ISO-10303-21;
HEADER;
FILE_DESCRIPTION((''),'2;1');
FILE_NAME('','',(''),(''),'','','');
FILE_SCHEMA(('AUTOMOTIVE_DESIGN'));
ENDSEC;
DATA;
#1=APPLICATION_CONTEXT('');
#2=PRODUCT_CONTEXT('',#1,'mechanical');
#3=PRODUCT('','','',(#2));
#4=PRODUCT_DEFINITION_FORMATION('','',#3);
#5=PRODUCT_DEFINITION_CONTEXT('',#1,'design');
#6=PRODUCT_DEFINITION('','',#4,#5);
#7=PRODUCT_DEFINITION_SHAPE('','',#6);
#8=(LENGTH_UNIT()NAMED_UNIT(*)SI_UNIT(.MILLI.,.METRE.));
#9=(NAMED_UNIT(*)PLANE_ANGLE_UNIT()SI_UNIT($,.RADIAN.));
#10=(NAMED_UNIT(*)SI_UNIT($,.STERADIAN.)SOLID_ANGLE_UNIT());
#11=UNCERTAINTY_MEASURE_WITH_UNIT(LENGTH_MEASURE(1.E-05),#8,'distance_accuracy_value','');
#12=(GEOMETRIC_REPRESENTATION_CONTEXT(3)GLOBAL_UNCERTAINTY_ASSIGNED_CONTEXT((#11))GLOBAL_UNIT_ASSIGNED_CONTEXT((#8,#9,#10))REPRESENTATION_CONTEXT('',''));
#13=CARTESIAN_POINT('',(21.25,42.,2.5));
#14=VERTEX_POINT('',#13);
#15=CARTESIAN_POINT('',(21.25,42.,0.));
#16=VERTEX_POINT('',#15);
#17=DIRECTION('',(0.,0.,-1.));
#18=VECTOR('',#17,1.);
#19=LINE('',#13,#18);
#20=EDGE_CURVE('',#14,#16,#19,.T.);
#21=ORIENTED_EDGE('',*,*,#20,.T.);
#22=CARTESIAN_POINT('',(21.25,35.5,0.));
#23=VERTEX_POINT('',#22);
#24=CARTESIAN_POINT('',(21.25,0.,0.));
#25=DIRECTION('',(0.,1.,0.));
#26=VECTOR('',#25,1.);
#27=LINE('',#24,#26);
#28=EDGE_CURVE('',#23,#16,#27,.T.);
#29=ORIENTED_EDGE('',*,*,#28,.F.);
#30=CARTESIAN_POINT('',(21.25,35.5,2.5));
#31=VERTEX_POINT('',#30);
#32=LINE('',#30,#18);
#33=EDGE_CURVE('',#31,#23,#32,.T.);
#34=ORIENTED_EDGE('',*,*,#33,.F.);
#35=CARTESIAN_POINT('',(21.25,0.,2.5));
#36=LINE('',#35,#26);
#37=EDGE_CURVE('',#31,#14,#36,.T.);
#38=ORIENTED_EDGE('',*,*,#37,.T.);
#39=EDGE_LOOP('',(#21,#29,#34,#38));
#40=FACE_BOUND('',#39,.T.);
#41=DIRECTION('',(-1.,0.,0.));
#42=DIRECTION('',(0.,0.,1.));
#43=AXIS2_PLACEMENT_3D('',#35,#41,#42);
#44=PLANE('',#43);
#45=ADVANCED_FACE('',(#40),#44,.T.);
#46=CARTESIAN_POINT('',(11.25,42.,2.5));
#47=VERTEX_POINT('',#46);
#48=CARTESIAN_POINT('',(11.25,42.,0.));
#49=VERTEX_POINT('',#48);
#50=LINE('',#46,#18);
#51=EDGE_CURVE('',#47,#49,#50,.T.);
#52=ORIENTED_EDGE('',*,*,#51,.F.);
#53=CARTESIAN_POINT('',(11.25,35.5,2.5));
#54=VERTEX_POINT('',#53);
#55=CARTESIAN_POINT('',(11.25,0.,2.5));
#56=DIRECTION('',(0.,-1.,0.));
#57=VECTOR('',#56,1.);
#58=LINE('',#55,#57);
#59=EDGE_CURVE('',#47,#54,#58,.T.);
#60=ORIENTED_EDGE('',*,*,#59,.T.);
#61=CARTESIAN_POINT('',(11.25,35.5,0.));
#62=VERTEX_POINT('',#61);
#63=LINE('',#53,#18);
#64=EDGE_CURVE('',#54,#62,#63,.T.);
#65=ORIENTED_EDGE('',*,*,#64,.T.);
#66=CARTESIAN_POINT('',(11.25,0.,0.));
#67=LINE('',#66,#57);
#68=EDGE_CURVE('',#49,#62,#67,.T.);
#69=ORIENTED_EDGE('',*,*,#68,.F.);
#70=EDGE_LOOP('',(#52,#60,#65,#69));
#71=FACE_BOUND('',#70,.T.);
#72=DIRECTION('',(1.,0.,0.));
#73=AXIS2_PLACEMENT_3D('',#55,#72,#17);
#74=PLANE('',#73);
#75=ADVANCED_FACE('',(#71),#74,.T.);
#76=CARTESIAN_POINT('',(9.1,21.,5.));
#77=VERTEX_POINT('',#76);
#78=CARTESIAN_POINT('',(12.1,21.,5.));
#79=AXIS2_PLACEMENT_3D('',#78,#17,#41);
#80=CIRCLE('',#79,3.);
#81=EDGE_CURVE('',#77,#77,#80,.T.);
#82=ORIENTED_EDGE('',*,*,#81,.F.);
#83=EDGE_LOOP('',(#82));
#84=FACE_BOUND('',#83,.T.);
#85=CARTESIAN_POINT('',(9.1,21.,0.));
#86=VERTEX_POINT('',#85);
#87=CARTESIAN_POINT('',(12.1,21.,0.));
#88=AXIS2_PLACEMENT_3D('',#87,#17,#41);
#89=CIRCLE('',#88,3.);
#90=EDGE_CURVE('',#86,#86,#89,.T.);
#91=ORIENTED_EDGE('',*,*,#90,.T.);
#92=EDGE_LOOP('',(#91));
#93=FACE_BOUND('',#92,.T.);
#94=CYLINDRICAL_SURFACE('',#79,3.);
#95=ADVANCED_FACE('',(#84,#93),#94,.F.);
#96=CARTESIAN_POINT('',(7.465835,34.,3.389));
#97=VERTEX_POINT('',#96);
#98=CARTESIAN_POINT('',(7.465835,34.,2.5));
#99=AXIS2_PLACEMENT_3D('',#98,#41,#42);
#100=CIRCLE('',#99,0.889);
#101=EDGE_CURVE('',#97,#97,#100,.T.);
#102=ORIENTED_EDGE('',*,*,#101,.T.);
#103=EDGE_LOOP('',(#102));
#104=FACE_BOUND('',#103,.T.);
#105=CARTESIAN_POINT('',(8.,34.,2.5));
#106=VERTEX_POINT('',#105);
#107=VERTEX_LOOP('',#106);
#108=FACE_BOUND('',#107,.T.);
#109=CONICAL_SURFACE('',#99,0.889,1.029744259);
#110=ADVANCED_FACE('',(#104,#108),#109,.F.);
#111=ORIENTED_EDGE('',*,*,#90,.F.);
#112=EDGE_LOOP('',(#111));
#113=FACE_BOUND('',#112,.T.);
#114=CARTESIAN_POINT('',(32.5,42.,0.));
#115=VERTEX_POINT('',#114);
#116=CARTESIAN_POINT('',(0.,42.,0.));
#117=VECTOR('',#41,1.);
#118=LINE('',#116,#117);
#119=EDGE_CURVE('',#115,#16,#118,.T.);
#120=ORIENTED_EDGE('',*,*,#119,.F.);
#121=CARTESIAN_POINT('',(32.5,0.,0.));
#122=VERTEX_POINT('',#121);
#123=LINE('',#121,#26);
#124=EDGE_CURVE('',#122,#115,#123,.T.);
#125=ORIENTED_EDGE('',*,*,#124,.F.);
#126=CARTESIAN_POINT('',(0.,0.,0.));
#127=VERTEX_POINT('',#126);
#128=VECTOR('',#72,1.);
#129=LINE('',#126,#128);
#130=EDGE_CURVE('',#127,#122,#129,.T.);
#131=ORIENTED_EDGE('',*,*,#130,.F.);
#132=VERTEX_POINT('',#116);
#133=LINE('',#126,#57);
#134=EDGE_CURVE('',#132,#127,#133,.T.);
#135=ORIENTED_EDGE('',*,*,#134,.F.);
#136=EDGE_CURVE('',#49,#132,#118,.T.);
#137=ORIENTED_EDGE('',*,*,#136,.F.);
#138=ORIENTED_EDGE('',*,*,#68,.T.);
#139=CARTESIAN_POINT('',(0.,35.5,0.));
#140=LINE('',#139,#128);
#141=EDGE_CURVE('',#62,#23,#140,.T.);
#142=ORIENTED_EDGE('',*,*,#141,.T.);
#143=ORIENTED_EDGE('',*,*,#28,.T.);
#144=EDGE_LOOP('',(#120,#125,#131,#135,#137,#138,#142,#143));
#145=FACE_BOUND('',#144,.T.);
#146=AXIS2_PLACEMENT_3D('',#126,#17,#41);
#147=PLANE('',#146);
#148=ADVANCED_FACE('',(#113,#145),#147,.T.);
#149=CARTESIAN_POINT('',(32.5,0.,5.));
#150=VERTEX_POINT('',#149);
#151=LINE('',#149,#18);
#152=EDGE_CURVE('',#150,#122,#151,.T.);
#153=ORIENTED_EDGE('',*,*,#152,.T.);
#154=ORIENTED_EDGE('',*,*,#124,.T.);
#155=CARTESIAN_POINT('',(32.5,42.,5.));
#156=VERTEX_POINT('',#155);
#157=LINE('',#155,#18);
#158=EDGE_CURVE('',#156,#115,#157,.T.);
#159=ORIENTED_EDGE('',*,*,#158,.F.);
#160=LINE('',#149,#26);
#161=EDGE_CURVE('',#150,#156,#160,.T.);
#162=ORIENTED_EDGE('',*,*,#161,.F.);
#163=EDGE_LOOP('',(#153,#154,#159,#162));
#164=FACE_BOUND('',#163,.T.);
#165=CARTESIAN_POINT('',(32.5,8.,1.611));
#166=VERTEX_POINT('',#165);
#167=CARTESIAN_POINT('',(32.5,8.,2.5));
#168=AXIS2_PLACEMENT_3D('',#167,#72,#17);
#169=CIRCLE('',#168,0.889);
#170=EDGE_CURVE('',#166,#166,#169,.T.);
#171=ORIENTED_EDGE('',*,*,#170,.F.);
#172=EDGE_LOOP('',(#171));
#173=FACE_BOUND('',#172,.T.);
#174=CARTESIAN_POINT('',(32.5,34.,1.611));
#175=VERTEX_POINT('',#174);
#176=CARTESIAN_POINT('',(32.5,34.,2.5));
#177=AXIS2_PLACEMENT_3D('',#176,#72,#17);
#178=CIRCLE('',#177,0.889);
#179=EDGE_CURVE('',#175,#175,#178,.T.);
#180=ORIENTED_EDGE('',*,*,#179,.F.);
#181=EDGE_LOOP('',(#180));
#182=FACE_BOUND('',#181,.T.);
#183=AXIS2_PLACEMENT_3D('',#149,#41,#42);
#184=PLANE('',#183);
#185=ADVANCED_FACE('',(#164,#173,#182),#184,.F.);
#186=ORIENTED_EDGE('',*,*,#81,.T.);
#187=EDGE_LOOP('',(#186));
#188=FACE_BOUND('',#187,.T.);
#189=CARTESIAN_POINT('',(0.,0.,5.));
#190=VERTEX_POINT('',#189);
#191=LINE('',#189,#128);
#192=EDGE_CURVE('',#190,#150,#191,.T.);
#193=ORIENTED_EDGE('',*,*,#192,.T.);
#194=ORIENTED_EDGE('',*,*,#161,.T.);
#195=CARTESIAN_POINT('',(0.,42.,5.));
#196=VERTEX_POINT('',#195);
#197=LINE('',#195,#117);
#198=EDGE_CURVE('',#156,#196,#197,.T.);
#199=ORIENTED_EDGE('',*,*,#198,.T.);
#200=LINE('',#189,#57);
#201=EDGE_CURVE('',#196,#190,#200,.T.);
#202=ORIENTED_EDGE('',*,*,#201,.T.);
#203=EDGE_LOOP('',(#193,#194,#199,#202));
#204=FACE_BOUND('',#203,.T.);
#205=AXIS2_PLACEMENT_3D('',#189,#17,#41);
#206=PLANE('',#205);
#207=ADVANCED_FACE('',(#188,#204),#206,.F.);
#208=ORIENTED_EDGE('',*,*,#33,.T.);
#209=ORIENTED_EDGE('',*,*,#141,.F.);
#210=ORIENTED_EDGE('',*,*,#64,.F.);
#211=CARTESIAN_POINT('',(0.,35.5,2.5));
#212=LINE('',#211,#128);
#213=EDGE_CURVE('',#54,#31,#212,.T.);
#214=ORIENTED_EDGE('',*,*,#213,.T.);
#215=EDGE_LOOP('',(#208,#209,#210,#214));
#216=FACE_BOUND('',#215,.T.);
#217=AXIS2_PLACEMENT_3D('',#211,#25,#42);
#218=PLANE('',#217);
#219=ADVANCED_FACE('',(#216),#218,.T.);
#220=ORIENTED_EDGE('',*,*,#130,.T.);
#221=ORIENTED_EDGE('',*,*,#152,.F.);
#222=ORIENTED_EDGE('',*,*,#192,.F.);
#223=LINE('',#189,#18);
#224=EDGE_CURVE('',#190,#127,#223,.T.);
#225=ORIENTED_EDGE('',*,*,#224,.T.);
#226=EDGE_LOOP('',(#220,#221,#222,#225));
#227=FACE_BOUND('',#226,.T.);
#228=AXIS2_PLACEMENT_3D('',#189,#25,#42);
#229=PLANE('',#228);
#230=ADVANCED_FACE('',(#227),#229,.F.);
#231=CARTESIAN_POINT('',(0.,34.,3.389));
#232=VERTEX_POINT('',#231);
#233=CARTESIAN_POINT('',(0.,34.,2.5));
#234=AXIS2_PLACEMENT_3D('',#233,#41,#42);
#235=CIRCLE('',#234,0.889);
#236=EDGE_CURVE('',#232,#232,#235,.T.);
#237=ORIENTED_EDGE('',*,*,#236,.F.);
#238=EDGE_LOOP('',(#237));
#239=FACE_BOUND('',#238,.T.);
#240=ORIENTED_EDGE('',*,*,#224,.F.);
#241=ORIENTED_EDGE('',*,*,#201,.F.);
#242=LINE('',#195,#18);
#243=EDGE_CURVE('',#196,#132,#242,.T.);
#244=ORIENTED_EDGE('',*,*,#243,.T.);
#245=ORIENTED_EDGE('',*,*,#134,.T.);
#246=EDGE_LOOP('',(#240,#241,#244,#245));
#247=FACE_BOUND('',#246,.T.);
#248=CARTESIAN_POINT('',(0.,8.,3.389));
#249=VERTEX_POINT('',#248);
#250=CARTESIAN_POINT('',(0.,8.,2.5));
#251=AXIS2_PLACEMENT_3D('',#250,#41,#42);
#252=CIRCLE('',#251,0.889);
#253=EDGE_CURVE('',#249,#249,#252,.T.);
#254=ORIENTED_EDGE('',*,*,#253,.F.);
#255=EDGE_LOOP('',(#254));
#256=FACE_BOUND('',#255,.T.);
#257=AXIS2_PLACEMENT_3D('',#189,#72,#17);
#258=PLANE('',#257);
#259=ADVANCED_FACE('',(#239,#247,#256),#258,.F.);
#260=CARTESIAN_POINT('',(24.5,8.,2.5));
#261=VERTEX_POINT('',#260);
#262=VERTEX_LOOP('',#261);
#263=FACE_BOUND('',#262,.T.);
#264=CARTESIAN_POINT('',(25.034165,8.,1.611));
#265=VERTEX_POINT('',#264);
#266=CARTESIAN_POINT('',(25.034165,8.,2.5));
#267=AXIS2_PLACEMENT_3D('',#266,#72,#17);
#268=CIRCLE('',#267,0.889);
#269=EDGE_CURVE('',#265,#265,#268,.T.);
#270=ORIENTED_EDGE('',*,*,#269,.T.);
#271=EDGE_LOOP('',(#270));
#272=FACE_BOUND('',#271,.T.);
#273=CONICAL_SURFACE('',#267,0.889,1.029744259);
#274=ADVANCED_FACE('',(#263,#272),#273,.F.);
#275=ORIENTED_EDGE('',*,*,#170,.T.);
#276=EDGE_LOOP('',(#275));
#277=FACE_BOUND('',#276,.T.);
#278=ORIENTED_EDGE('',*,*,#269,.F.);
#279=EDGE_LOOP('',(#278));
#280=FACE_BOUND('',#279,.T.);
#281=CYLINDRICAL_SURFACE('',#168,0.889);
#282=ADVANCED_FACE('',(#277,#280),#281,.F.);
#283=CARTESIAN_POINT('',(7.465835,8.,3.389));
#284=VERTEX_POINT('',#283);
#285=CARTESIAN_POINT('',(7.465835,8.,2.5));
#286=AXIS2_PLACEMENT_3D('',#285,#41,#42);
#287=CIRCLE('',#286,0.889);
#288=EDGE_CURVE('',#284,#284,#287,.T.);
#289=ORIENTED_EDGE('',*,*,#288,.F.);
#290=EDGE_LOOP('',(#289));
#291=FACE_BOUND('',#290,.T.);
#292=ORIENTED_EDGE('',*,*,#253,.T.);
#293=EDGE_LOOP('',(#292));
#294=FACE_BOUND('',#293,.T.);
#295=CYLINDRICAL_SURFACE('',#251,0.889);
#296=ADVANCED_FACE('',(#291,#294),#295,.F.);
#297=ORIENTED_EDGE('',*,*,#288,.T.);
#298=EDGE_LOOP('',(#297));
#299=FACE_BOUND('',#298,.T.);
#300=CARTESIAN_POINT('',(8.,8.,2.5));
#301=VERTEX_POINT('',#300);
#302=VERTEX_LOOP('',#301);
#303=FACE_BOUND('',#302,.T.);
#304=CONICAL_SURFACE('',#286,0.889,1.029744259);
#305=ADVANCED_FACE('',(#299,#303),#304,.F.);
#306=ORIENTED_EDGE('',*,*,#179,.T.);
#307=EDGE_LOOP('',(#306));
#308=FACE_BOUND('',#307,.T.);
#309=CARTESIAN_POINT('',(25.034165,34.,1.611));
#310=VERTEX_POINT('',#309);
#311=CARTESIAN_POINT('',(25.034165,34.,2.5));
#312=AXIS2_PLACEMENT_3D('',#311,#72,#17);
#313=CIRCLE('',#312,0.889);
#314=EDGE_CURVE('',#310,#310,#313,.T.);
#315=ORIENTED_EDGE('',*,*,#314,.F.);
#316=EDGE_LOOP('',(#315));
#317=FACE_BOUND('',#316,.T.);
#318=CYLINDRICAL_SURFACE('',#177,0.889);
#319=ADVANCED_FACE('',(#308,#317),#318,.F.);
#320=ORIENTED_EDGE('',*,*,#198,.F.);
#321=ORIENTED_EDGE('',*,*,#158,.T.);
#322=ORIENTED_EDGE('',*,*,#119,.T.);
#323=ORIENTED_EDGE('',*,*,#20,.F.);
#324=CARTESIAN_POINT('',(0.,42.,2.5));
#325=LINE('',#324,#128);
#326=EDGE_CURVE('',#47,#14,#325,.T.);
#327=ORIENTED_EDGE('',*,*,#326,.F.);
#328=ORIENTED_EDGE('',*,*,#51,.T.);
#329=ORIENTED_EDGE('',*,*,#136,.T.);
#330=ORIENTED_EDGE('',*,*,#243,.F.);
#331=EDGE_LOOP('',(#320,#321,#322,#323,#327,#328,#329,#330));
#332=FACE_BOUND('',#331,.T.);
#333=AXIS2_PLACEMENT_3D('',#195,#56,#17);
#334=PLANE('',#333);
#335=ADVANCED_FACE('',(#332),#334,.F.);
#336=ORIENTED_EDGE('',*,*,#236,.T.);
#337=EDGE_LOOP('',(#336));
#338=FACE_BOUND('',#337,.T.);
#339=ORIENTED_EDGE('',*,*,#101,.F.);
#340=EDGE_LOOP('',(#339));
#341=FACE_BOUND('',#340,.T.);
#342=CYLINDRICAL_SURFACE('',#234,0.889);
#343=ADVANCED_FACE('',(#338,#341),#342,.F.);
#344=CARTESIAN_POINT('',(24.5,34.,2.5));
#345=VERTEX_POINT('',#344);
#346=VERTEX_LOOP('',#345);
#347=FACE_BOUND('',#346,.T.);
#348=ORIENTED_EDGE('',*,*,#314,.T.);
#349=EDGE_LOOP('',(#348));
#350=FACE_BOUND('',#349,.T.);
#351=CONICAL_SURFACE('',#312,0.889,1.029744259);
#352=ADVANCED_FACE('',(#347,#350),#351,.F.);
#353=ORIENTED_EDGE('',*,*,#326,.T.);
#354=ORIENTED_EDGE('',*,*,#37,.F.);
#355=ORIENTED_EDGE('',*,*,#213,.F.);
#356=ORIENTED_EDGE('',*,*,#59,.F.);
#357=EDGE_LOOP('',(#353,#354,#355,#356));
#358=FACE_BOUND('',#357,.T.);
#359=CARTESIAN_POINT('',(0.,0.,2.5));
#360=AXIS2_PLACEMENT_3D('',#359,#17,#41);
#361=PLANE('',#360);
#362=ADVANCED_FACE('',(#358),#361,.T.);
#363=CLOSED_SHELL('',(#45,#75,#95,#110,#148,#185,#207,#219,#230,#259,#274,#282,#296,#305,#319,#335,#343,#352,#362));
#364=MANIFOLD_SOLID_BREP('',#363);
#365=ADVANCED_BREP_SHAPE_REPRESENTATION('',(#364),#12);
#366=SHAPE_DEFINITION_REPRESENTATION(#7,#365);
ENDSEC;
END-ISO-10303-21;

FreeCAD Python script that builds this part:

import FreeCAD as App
import Part
import Sketcher
from FreeCAD import Vector
Q = App.Units.Quantity

doc = App.newDocument("Part")
body = doc.addObject("PartDesign::Body", "Body")

sketch1 = doc.addObject("Sketcher::SketchObject", "Sketch")
body.addObject(sketch1)
sketch1.AttachmentSupport = (doc.XY_Plane, [""])
sketch1.MapMode = "FlatFace"
sketch1.addGeometry([
    Part.LineSegment(Vector(0, 42, 0), Vector(0, 0, 0)),
    Part.LineSegment(Vector(0, 0, 0), Vector(32, 0, 0)),
    Part.LineSegment(Vector(32, 0, 0), Vector(32, 42, 0)),
    Part.LineSegment(Vector(32, 42, 0), Vector(0, 42, 0)),
], False)
sketch1.addConstraint([
    Sketcher.Constraint("Coincident", 0, 2, 1, 1),
    Sketcher.Constraint("Coincident", 1, 2, 2, 1),
    Sketcher.Constraint("Coincident", 2, 2, 3, 1),
    Sketcher.Constraint("Coincident", 3, 2, 0, 1),
    Sketcher.Constraint("Vertical", 0),
    Sketcher.Constraint("Horizontal", 1),
    Sketcher.Constraint("Vertical", 2),
    Sketcher.Constraint("Horizontal", 3),
    Sketcher.Constraint("Coincident", 0, 2, -1, 1),
    Sketcher.Constraint("DistanceY", 0, 2, 0, 1, Q("42 mm")),
    Sketcher.Constraint("DistanceX", 1, 1, 1, 2, Q("32.5 mm")),
])
pad1 = doc.addObject("PartDesign::Pad", "Pad")
body.addObject(pad1)
pad1.Profile = sketch1
pad1.Length = 5

sketch2 = doc.addObject("Sketcher::SketchObject", "Sketch001")
body.addObject(sketch2)
sketch2.AttachmentSupport = (doc.YZ_Plane, [""])
sketch2.MapMode = "FlatFace"
sketch2.addGeometry([
    Part.Circle(Vector(34, 2.5, 0), Vector(0, 0, 1), 0.9),
    Part.Circle(Vector(8, 2.5, 0), Vector(0, 0, 1), 0.9),
], False)
sketch2.addConstraint([
    Sketcher.Constraint("Equal", 0, 1),
    Sketcher.Constraint("Horizontal", 0, 3, 1, 3),
    Sketcher.Constraint("Diameter", 0, Q("1.778 mm")),
    Sketcher.Constraint("DistanceX", -1, 1, 0, 3, Q("34 mm")),
    Sketcher.Constraint("DistanceX", -1, 1, 1, 3, Q("8 mm")),
    Sketcher.Constraint("DistanceY", -1, 1, 0, 3, Q("2.5 mm")),
])
doc.recompute()
hole = doc.addObject("PartDesign::Hole", "Hole")
body.addObject(hole)
hole.Profile = sketch2
hole.ThreadType = "None"
hole.Diameter = 1.778
hole.DepthType = "Dimension"
hole.Depth = 7.465835
hole.DrillPoint = "Angled"
hole.DrillPointAngle = 118
hole.Reversed = True

sketch3 = doc.addObject("Sketcher::SketchObject", "Sketch002")
body.addObject(sketch3)
sketch3.AttachmentSupport = (doc.YZ_Plane, [""])
sketch3.MapMode = "FlatFace"
sketch3.AttachmentOffset = App.Placement(Vector(0, 0, 32.5), App.Rotation())
sketch3.addGeometry([
    Part.Circle(Vector(34, 2.5, 0), Vector(0, 0, 1), 0.9),
    Part.Circle(Vector(8, 2.5, 0), Vector(0, 0, 1), 0.9),
], False)
sketch3.addConstraint([
    Sketcher.Constraint("Equal", 0, 1),
    Sketcher.Constraint("Horizontal", 0, 3, 1, 3),
    Sketcher.Constraint("Diameter", 0, Q("1.778 mm")),
    Sketcher.Constraint("DistanceX", -1, 1, 0, 3, Q("34 mm")),
    Sketcher.Constraint("DistanceX", -1, 1, 1, 3, Q("8 mm")),
    Sketcher.Constraint("DistanceY", -1, 1, 0, 3, Q("2.5 mm")),
])
doc.recompute()
hole2 = doc.addObject("PartDesign::Hole", "Hole001")
body.addObject(hole2)
hole2.Profile = sketch3
hole2.ThreadType = "None"
hole2.Diameter = 1.778
hole2.DepthType = "Dimension"
hole2.Depth = 7.465835
hole2.DrillPoint = "Angled"
hole2.DrillPointAngle = 118

sketch4 = doc.addObject("Sketcher::SketchObject", "Sketch003")
body.addObject(sketch4)
sketch4.AttachmentSupport = (doc.XY_Plane, [""])
sketch4.MapMode = "FlatFace"
sketch4.addGeometry(Part.Circle(Vector(12.1, 21, 0), Vector(0, 0, 1), 3), False)
sketch4.addConstraint([
    Sketcher.Constraint("Diameter", 0, Q("6 mm")),
    Sketcher.Constraint("DistanceY", -1, 1, 0, 3, Q("21 mm")),
    Sketcher.Constraint("DistanceX", -1, 1, 0, 3, Q("12.1 mm")),
])
pocket1 = doc.addObject("PartDesign::Pocket", "Pocket")
body.addObject(pocket1)
pocket1.Profile = sketch4
pocket1.Length = 5
pocket1.Reversed = True

sketch5 = doc.addObject("Sketcher::SketchObject", "Sketch004")
body.addObject(sketch5)
sketch5.AttachmentSupport = (doc.XY_Plane, [""])
sketch5.MapMode = "FlatFace"
sketch5.addGeometry([
    Part.LineSegment(Vector(21, 42, 0), Vector(21, 36, 0)),
    Part.LineSegment(Vector(21, 36, 0), Vector(11, 36, 0)),
    Part.LineSegment(Vector(11, 36, 0), Vector(11, 42, 0)),
    Part.LineSegment(Vector(11, 42, 0), Vector(21, 42, 0)),
], False)
sketch5.addConstraint([
    Sketcher.Constraint("Coincident", 0, 2, 1, 1),
    Sketcher.Constraint("Coincident", 1, 2, 2, 1),
    Sketcher.Constraint("Coincident", 2, 2, 3, 1),
    Sketcher.Constraint("Coincident", 3, 2, 0, 1),
    Sketcher.Constraint("Vertical", 0),
    Sketcher.Constraint("Horizontal", 1),
    Sketcher.Constraint("Vertical", 2),
    Sketcher.Constraint("Horizontal", 3),
    Sketcher.Constraint("DistanceX", 1, 2, 1, 1, Q("10 mm")),
    Sketcher.Constraint("DistanceY", 0, 2, 0, 1, Q("6.5 mm")),
    Sketcher.Constraint("DistanceY", -1, 1, 2, 2, Q("42 mm")),
    Sketcher.Constraint("DistanceX", -1, 1, 0, 2, Q("21.25 mm")),
])
pocket2 = doc.addObject("PartDesign::Pocket", "Pocket001")
body.addObject(pocket2)
pocket2.Profile = sketch5
pocket2.Length = 2.5
pocket2.Reversed = True

doc.recompute()
